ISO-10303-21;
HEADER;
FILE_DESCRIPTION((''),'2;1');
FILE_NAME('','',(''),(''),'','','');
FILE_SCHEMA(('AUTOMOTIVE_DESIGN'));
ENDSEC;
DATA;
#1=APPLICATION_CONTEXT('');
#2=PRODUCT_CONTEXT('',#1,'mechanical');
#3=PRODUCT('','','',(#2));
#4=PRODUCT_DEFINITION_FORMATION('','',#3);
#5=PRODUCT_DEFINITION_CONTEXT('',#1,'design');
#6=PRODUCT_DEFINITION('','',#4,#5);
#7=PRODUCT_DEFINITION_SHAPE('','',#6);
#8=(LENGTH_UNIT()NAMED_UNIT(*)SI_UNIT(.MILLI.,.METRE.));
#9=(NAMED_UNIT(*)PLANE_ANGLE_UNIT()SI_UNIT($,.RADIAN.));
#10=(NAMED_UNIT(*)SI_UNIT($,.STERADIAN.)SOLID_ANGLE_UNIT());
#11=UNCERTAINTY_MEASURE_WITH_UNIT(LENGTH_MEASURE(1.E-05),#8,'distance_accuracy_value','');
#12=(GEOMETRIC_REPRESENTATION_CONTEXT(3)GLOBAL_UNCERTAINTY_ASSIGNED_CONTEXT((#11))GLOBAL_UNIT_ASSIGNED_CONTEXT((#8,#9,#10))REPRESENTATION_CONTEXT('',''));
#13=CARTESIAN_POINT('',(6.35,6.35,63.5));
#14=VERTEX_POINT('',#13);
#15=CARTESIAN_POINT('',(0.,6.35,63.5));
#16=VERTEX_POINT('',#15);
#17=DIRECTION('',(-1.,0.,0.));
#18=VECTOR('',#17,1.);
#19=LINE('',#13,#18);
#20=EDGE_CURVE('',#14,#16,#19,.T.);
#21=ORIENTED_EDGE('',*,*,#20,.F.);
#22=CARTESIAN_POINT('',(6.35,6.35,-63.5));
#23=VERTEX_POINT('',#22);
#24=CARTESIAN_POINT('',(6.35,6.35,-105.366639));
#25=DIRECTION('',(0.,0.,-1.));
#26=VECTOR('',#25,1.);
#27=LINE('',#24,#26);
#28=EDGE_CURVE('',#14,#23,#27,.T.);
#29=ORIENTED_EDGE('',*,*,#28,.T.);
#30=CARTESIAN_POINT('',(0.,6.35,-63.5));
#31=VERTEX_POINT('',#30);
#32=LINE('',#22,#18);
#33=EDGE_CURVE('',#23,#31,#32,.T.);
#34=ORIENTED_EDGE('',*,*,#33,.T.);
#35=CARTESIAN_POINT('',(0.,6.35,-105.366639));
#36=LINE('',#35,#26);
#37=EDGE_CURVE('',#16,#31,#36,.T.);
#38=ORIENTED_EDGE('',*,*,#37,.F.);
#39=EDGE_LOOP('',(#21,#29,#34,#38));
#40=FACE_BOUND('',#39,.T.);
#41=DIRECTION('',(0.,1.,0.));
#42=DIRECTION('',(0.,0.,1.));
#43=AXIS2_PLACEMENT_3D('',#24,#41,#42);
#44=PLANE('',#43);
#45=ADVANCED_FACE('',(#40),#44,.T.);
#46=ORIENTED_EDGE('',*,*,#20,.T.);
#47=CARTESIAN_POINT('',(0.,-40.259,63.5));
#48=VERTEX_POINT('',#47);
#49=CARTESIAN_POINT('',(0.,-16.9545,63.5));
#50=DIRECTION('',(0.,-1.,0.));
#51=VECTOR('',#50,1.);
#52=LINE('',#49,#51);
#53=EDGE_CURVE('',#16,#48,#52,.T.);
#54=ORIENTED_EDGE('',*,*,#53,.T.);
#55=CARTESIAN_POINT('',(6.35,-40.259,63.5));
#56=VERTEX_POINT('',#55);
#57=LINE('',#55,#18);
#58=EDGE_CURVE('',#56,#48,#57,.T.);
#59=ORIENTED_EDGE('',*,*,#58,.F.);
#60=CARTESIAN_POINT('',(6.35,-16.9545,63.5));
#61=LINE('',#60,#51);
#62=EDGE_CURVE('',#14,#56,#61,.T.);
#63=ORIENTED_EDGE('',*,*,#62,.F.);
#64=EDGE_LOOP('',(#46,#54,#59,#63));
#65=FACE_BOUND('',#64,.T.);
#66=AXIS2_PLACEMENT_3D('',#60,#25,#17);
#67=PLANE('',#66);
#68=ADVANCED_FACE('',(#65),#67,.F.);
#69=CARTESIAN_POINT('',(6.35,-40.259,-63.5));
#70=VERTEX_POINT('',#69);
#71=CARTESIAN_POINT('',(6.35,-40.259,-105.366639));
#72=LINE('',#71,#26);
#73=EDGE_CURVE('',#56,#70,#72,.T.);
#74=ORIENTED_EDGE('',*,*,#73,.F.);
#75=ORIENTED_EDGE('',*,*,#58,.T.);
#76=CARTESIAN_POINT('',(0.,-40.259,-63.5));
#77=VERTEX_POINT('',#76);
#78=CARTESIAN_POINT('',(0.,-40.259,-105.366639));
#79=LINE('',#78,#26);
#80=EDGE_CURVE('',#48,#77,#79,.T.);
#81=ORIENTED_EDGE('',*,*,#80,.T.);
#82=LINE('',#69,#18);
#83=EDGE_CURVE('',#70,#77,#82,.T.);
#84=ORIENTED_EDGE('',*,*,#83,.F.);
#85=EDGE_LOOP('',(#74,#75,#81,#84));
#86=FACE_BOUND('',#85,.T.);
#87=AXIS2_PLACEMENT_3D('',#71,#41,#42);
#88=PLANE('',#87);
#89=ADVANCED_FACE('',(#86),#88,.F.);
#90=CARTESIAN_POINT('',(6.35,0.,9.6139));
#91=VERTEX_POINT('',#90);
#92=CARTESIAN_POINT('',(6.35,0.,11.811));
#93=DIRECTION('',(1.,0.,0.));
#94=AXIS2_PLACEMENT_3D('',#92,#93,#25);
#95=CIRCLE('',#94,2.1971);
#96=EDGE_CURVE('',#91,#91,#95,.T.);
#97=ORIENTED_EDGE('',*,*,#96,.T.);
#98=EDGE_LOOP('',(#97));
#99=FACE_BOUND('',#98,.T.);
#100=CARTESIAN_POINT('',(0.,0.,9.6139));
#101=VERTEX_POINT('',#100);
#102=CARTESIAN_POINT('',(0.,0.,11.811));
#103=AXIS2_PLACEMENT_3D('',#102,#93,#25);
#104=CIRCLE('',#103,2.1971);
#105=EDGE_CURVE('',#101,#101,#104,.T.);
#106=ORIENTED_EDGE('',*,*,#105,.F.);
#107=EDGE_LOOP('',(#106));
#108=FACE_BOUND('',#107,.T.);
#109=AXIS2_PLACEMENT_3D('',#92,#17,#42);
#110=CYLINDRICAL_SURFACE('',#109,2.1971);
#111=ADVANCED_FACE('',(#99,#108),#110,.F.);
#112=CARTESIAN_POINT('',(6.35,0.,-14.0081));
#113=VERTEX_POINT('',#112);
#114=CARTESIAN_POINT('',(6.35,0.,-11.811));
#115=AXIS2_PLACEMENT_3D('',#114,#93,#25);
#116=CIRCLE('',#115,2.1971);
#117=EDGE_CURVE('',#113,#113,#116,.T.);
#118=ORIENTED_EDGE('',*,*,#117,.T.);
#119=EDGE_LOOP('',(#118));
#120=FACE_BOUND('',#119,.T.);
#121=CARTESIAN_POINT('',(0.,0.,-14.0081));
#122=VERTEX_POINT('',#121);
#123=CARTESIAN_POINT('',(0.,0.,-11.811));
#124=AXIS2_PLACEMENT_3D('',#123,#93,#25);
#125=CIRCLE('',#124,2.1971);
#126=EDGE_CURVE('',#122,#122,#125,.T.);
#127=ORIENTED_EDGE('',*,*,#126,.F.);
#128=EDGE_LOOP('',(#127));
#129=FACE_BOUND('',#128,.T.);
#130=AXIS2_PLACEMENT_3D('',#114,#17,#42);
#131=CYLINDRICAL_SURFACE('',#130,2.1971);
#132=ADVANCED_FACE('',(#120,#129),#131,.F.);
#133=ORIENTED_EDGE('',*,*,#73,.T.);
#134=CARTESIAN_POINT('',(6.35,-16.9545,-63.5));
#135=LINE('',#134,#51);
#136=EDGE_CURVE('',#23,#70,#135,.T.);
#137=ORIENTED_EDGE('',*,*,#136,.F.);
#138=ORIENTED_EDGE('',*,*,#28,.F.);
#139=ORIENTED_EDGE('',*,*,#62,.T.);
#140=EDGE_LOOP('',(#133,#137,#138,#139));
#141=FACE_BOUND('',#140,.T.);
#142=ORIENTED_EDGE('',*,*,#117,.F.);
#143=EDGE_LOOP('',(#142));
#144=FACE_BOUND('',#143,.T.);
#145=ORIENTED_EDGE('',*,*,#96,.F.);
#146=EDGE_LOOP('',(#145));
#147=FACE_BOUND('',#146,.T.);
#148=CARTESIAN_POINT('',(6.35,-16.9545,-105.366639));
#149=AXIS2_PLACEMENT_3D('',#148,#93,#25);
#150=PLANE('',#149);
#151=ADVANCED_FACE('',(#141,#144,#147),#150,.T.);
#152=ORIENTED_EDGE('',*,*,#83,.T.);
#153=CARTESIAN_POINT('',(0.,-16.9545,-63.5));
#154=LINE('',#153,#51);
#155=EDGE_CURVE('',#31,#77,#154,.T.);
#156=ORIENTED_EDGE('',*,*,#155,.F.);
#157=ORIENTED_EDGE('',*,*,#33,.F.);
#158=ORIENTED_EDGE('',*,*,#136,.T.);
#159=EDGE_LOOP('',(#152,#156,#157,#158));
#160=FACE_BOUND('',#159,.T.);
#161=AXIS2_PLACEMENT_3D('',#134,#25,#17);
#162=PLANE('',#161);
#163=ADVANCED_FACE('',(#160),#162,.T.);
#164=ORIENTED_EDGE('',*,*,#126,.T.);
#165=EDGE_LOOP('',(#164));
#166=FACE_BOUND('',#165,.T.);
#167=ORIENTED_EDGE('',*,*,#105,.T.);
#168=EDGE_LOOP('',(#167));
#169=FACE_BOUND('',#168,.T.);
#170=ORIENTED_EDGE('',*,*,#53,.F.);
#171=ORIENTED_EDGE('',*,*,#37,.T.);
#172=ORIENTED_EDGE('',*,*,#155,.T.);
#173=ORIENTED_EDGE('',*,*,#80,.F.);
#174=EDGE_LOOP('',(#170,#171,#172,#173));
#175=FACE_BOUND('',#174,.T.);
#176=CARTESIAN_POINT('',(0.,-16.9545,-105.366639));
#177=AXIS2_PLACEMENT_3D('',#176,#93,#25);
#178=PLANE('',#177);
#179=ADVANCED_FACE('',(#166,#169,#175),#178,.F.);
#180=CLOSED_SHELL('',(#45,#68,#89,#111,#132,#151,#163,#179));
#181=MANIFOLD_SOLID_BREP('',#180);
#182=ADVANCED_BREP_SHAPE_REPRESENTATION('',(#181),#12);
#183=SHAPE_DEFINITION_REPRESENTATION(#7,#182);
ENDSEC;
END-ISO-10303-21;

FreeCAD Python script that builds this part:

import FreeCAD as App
import Part
import Sketcher

V = App.Vector
Q = App.Units.Quantity


def add_polygon(sketch, points):
    """Adds a closed chain of lines whose ends are joined by coincident constraints."""
    first, n = sketch.GeometryCount, len(points)
    for a, b in zip(points, points[1:] + points[:1]):
        sketch.addGeometry(Part.LineSegment(App.Vector(*a, 0), App.Vector(*b, 0)), False)
    for i in range(n):
        sketch.addConstraint(Sketcher.Constraint("Coincident", first + i, 2, first + (i + 1) % n, 1))

doc = App.newDocument("Part")
body = doc.addObject("PartDesign::Body", "Body")

# Sketch on YZ plane
sketch1 = body.newObject("Sketcher::SketchObject", "Sketch")
sketch1.AttachmentSupport = (doc.getObject("YZ_Plane"), [""])
sketch1.MapMode = "FlatFace"
add_polygon(sketch1, [(6.35, 63.5), (-40.259, 63.5), (-40.259, -63.5), (6.35, -63.5)])  # lines 0-3
sketch1.addGeometry(Part.Circle(V(0, 11.811, 0), V(0, 0, 1), 2.1971), False)  # 4
sketch1.addGeometry(Part.Circle(V(0, -11.811, 0), V(0, 0, 1), 2.1971), False)  # 5
sketch1.addConstraint([
    Sketcher.Constraint("Horizontal", 0),
    Sketcher.Constraint("Vertical", 1),
    Sketcher.Constraint("Horizontal", 2),
    Sketcher.Constraint("Vertical", 3),
    Sketcher.Constraint("Equal", 4, 5),
    Sketcher.Constraint("Symmetric", 4, 3, 5, 3, -1, 1),
    Sketcher.Constraint("PointOnObject", 4, 3, -2),
    Sketcher.Constraint("DistanceY", 1, 2, 1, 1, Q("5 in")),
    Sketcher.Constraint("Diameter", 4, Q("0.173 in")),
    Sketcher.Constraint("DistanceY", -1, 1, 0, 2, Q("2.5 in")),
    Sketcher.Constraint("DistanceX", 0, 2, 0, 1, Q("1.835 in")),
    Sketcher.Constraint("DistanceX", -1, 1, 2, 2, Q("0.25 in")),
    Sketcher.Constraint("DistanceY", 5, 3, 4, 3, Q("0.93 in")),
])
pad1 = body.newObject("PartDesign::Pad", "Pad")
pad1.Profile = sketch1
pad1.Length = Q("0.25 in")

doc.recompute()
